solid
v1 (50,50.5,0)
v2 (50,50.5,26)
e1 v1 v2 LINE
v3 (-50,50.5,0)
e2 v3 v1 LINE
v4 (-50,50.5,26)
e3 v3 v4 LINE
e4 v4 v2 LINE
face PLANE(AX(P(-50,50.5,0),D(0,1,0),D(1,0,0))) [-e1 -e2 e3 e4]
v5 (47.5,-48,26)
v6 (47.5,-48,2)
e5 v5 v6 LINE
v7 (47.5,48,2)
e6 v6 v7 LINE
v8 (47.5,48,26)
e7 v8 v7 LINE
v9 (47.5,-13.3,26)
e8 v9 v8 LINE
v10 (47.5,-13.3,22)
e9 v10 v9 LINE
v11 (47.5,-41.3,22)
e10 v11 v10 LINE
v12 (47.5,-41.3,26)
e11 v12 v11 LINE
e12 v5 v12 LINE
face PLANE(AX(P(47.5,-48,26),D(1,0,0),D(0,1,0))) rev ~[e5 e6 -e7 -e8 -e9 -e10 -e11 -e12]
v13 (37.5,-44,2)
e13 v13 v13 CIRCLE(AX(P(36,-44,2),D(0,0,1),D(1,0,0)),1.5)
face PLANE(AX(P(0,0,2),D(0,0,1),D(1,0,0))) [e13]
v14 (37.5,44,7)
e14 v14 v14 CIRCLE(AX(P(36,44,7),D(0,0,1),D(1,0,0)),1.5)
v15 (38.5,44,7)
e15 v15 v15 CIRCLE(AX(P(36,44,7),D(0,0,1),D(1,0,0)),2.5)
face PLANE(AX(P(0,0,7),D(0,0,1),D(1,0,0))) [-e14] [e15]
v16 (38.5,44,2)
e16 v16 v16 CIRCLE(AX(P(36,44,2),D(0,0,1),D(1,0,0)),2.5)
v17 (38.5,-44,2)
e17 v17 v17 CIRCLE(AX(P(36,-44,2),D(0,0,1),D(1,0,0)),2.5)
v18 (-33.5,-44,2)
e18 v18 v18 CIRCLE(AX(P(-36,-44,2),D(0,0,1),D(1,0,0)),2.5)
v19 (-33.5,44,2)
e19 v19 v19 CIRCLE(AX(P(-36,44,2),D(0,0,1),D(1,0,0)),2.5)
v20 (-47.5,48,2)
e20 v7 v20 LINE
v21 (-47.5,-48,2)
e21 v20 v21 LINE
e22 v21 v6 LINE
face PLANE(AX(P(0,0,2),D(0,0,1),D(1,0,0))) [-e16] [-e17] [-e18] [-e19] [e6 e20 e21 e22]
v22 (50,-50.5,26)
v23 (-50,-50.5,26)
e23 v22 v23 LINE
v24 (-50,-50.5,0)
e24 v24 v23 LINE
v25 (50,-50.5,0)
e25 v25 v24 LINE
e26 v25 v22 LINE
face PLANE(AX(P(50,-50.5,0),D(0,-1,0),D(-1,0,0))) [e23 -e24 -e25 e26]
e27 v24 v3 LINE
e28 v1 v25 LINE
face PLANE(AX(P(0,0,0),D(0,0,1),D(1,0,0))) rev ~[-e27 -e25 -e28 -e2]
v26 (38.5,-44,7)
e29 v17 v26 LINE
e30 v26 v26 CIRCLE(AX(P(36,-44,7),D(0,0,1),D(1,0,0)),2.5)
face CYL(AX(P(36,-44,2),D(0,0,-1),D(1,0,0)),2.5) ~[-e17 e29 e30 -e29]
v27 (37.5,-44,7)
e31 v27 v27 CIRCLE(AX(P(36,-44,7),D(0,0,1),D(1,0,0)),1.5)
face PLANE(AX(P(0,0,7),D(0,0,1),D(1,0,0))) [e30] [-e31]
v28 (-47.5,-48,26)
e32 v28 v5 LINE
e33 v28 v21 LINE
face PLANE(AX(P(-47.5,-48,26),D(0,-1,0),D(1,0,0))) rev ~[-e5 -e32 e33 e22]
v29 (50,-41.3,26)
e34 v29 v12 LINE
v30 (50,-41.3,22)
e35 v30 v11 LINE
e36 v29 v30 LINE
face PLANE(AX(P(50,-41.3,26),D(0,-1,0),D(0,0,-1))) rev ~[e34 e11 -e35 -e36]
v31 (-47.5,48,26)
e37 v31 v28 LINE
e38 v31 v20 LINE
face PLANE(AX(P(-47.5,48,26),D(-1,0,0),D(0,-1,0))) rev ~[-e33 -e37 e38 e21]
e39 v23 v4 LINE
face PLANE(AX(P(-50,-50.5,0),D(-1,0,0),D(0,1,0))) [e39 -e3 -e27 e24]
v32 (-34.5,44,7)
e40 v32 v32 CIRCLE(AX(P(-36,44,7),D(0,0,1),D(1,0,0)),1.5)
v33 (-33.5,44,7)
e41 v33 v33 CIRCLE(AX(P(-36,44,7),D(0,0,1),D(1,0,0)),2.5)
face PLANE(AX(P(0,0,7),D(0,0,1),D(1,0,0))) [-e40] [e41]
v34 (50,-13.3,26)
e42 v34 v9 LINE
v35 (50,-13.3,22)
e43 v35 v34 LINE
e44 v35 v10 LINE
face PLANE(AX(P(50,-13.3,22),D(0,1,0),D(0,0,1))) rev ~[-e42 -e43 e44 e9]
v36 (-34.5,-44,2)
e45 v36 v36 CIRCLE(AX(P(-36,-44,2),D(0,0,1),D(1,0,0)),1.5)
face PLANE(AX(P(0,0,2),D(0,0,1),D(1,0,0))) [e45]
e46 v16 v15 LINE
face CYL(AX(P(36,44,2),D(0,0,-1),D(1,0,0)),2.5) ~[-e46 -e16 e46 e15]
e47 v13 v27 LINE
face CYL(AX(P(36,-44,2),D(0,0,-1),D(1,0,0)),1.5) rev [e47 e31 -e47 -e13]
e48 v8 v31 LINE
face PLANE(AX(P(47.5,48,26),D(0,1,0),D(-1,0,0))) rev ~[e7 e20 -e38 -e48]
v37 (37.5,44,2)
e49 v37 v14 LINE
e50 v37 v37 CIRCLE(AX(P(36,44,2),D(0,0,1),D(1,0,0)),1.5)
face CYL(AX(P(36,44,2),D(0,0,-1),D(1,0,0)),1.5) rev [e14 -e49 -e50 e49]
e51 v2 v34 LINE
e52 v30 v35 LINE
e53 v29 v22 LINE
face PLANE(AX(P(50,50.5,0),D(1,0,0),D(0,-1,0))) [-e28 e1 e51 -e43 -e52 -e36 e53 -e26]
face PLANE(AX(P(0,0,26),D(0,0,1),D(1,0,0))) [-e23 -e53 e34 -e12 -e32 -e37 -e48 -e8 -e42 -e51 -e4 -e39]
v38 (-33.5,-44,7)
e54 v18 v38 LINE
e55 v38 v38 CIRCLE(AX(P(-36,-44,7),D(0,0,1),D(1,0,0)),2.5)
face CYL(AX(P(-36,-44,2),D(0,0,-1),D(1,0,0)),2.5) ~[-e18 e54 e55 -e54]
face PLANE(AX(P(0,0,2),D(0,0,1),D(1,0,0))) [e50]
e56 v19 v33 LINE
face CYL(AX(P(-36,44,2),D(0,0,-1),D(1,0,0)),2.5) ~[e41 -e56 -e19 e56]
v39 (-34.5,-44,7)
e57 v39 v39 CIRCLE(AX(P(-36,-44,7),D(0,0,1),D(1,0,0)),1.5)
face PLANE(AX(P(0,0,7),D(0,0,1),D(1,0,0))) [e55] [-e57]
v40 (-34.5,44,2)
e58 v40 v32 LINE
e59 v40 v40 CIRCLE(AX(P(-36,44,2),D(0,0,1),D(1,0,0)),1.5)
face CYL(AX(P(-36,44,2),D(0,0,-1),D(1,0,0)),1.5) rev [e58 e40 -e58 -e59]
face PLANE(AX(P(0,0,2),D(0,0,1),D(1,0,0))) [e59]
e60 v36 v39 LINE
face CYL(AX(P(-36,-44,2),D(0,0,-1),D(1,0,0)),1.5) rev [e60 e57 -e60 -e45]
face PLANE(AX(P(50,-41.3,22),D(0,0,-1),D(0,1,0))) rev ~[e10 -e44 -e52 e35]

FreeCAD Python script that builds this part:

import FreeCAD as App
import Part
import Sketcher
from FreeCAD import Vector
Q = App.Units.Quantity


def add_polygon(sketch, points):
    """Adds a closed chain of lines whose ends are joined by coincident constraints."""
    first, n = sketch.GeometryCount, len(points)
    for a, b in zip(points, points[1:] + points[:1]):
        sketch.addGeometry(Part.LineSegment(App.Vector(*a, 0), App.Vector(*b, 0)), False)
    for i in range(n):
        sketch.addConstraint(Sketcher.Constraint("Coincident", first + i, 2, first + (i + 1) % n, 1))

doc = App.newDocument("Part")
params = doc.addObject("Spreadsheet::Sheet", "Params")
for row, (alias, value) in enumerate([
    ("sketch1_width", "100 mm"),
    ("sketch1_height", "101 mm"),
    ("pad1_length", "26 mm"),
    ("sketch2_width", "95 mm"),
    ("sketch2_height", "96 mm"),
    ("pocket1_length", "24 mm"),
    ("sketch3_diameter", "5 mm"),
    ("sketch3_diameter2", "3 mm"),
    ("pad2_length", "5 mm"),
    ("sketch4_width", "28 mm"),
    ("sketch4_height", "4 mm"),
    ("pocket2_length", "2.5 mm"),
], start=1):
    params.set(f"A{row}", alias)
    params.set(f"B{row}", "=" + value)
    params.setAlias(f"B{row}", alias)

body = doc.addObject("PartDesign::Body", "Body")

sketch1 = body.newObject("Sketcher::SketchObject", "Sketch")
sketch1.AttachmentSupport = (doc.getObject("XY_Plane"), [""])
sketch1.MapMode = "FlatFace"
add_polygon(sketch1, [(50, 50), (-50, 50), (-50, -50), (50, -50)])
sketch1.addConstraint(Sketcher.Constraint("Horizontal", 0))
sketch1.addConstraint(Sketcher.Constraint("Vertical", 1))
sketch1.addConstraint(Sketcher.Constraint("Horizontal", 2))
sketch1.addConstraint(Sketcher.Constraint("Vertical", 3))
sketch1.addConstraint(Sketcher.Constraint("Symmetric", 0, 2, 2, 2, -1, 1))
sketch1.addConstraint(Sketcher.Constraint("DistanceX", 0, 2, 0, 1, Q("100 mm")))
sketch1.addConstraint(Sketcher.Constraint("DistanceY", 1, 2, 1, 1, Q("101 mm")))
sketch1.setExpression("Constraints[9]", "Params.sketch1_width")
sketch1.setExpression("Constraints[10]", "Params.sketch1_height")
pad1 = body.newObject("PartDesign::Pad", "Pad")
pad1.Profile = sketch1
pad1.setExpression("Length", "Params.pad1_length")

sketch2 = body.newObject("Sketcher::SketchObject", "Sketch001")
sketch2.AttachmentSupport = (doc.getObject("XY_Plane"), [""])
sketch2.MapMode = "FlatFace"
sketch2.AttachmentOffset = App.Placement(Vector(0, 0, 26), App.Rotation())
add_polygon(sketch2, [(-48, -48), (48, -48), (48, 48), (-48, 48)])
sketch2.addConstraint(Sketcher.Constraint("Horizontal", 0))
sketch2.addConstraint(Sketcher.Constraint("Vertical", 1))
sketch2.addConstraint(Sketcher.Constraint("Horizontal", 2))
sketch2.addConstraint(Sketcher.Constraint("Vertical", 3))
sketch2.addConstraint(Sketcher.Constraint("Symmetric", 0, 2, 2, 2, -1, 1))
sketch2.addConstraint(Sketcher.Constraint("DistanceX", 0, 1, 0, 2, Q("95 mm")))
sketch2.addConstraint(Sketcher.Constraint("DistanceY", 1, 1, 1, 2, Q("96 mm")))
sketch2.setExpression("Constraints[9]", "Params.sketch2_width")
sketch2.setExpression("Constraints[10]", "Params.sketch2_height")
pocket1 = body.newObject("PartDesign::Pocket", "Pocket")
pocket1.Profile = sketch2
pocket1.setExpression("Length", "Params.pocket1_length")

sketch3 = body.newObject("Sketcher::SketchObject", "Sketch002")
sketch3.AttachmentSupport = (doc.getObject("XY_Plane"), [""])
sketch3.MapMode = "FlatFace"
sketch3.AttachmentOffset = App.Placement(Vector(0, 0, 2), App.Rotation())
sketch3.addGeometry(Part.Circle(Vector(-36, -44, 0), Vector(0, 0, 1), 2.5), False)
sketch3.addGeometry(Part.Circle(Vector(-36, -44, 0), Vector(0, 0, 1), 1.5), False)
sketch3.addGeometry(Part.Circle(Vector(-36, 44, 0), Vector(0, 0, 1), 2.5), False)
sketch3.addGeometry(Part.Circle(Vector(-36, 44, 0), Vector(0, 0, 1), 1.5), False)
sketch3.addGeometry(Part.Circle(Vector(36, -44, 0), Vector(0, 0, 1), 2.5), False)
sketch3.addGeometry(Part.Circle(Vector(36, -44, 0), Vector(0, 0, 1), 1.5), False)
sketch3.addGeometry(Part.Circle(Vector(36, 44, 0), Vector(0, 0, 1), 2.5), False)
sketch3.addGeometry(Part.Circle(Vector(36, 44, 0), Vector(0, 0, 1), 1.5), False)
sketch3.addConstraint(Sketcher.Constraint("Coincident", 1, 3, 0, 3))
sketch3.addConstraint(Sketcher.Constraint("Coincident", 3, 3, 2, 3))
sketch3.addConstraint(Sketcher.Constraint("Coincident", 5, 3, 4, 3))
sketch3.addConstraint(Sketcher.Constraint("Coincident", 7, 3, 6, 3))
sketch3.addConstraint(Sketcher.Constraint("Equal", 0, 2))
sketch3.addConstraint(Sketcher.Constraint("Equal", 1, 3))
sketch3.addConstraint(Sketcher.Constraint("Equal", 2, 4))
sketch3.addConstraint(Sketcher.Constraint("Equal", 3, 5))
sketch3.addConstraint(Sketcher.Constraint("Equal", 4, 6))
sketch3.addConstraint(Sketcher.Constraint("Equal", 5, 7))
sketch3.addConstraint(Sketcher.Constraint("Symmetric", 2, 3, 4, 3, -1, 1))
sketch3.addConstraint(Sketcher.Constraint("Symmetric", 0, 3, 6, 3, -1, 1))
sketch3.addConstraint(Sketcher.Constraint("Symmetric", 0, 3, 4, 3, -2))
sketch3.addConstraint(Sketcher.Constraint("Diameter", 0, Q("5 mm")))
sketch3.addConstraint(Sketcher.Constraint("Diameter", 1, Q("3 mm")))
sketch3.addConstraint(Sketcher.Constraint("DistanceX", 0, 3, -1, 1, Q("36 mm")))
sketch3.addConstraint(Sketcher.Constraint("DistanceY", 0, 3, -1, 1, Q("44 mm")))
sketch3.setExpression("Constraints[13]", "Params.sketch3_diameter")
sketch3.setExpression("Constraints[14]", "Params.sketch3_diameter2")
pad2 = body.newObject("PartDesign::Pad", "Pad001")
pad2.Profile = sketch3
pad2.setExpression("Length", "Params.pad2_length")

sketch4 = body.newObject("Sketcher::SketchObject", "Sketch003")
sketch4.AttachmentSupport = (doc.getObject("YZ_Plane"), [""])
sketch4.MapMode = "FlatFace"
sketch4.AttachmentOffset = App.Placement(Vector(0, 0, 50), App.Rotation())
add_polygon(sketch4, [(-13.3, 26), (-41.3, 26), (-41.3, 22), (-13.3, 22)])
sketch4.addConstraint(Sketcher.Constraint("Horizontal", 0))
sketch4.addConstraint(Sketcher.Constraint("Vertical", 1))
sketch4.addConstraint(Sketcher.Constraint("Horizontal", 2))
sketch4.addConstraint(Sketcher.Constraint("Vertical", 3))
sketch4.addConstraint(Sketcher.Constraint("DistanceX", 0, 2, 0, 1, Q("28 mm")))
sketch4.addConstraint(Sketcher.Constraint("DistanceY", 1, 2, 1, 1, Q("4 mm")))
sketch4.addConstraint(Sketcher.Constraint("DistanceY", -1, 1, 0, 2, Q("26 mm")))
sketch4.addConstraint(Sketcher.Constraint("DistanceX", 0, 2, -1, 1, Q("41.3 mm")))
sketch4.setExpression("Constraints[8]", "Params.sketch4_width")
sketch4.setExpression("Constraints[9]", "Params.sketch4_height")
pocket2 = body.newObject("PartDesign::Pocket", "Pocket001")
pocket2.Profile = sketch4
pocket2.setExpression("Length", "Params.pocket2_length")

doc.recompute()
